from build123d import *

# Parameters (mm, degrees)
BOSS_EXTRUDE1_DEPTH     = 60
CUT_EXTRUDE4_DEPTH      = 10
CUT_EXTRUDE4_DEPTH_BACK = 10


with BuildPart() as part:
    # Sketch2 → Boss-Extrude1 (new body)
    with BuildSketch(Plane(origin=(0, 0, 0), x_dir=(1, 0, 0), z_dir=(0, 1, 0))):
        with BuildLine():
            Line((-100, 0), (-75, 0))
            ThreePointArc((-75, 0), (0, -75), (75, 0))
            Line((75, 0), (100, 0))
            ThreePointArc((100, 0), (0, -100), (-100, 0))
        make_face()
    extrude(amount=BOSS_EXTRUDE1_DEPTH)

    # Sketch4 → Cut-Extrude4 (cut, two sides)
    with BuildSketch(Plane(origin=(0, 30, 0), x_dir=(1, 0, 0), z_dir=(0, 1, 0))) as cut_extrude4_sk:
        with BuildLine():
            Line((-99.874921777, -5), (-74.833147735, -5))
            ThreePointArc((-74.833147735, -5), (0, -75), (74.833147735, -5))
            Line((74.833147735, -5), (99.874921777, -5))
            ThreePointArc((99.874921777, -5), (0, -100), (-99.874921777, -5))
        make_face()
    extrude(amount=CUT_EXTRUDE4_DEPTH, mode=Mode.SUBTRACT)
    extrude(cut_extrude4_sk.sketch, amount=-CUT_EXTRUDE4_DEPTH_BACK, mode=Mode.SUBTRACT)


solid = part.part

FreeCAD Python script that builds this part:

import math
import FreeCAD as App
import Part
import Sketcher

doc = App.newDocument("Part")
body = doc.addObject("PartDesign::Body", "Body")

sketch1 = body.newObject("Sketcher::SketchObject", "Sketch")
sketch1.AttachmentSupport = (doc.getObject("XZ_Plane"), [""])
sketch1.MapMode = "FlatFace"
sketch1.addGeometry(Part.LineSegment(App.Vector(-75, 0, 0), App.Vector(-100, 0, 0)), False)
sketch1.addGeometry(Part.ArcOfCircle(Part.Circle(App.Vector(0, 0, 0), App.Vector(0, 0, 1), 100), math.radians(0), math.radians(180)), False)
sketch1.addGeometry(Part.LineSegment(App.Vector(100, 0, 0), App.Vector(75, 0, 0)), False)
sketch1.addGeometry(Part.ArcOfCircle(Part.Circle(App.Vector(0, 0, 0), App.Vector(0, 0, 1), 75), math.radians(0), math.radians(180)), False)
sketch1.addConstraint(Sketcher.Constraint("Coincident", 0, 2, 1, 2))
sketch1.addConstraint(Sketcher.Constraint("Coincident", 1, 1, 2, 1))
sketch1.addConstraint(Sketcher.Constraint("Coincident", 2, 2, 3, 1))
sketch1.addConstraint(Sketcher.Constraint("Coincident", 3, 2, 0, 1))
sketch1.addConstraint(Sketcher.Constraint("Horizontal", 0))
sketch1.addConstraint(Sketcher.Constraint("Horizontal", 2))
sketch1.addConstraint(Sketcher.Constraint("Coincident", 1, 3, -1, 1))
sketch1.addConstraint(Sketcher.Constraint("Coincident", 3, 3, -1, 1))
sketch1.addConstraint(Sketcher.Constraint("PointOnObject", 0, 2, -1))
sketch1.addConstraint(Sketcher.Constraint("PointOnObject", 1, 1, -1))
sketch1.addConstraint(Sketcher.Constraint("Radius", 1, 100.0))
sketch1.addConstraint(Sketcher.Constraint("Radius", 3, 75.0))
pad1 = body.newObject("PartDesign::Pad", "Pad")
pad1.Profile = sketch1
pad1.Length = 60
pad1.Reversed = True

sketch2 = body.newObject("Sketcher::SketchObject", "Sketch001")
sketch2.AttachmentSupport = (doc.getObject("XZ_Plane"), [""])
sketch2.MapMode = "FlatFace"
sketch2.AttachmentOffset = App.Placement(App.Vector(0, 0, -30), App.Rotation())
sketch2.addGeometry(Part.LineSegment(App.Vector(-74.833148, 5, 0), App.Vector(-99.874922, 5, 0)), False)
sketch2.addGeometry(Part.ArcOfCircle(Part.Circle(App.Vector(0, 0, 0), App.Vector(0, 0, 1), 100), math.radians(2.865984), math.radians(177.134016)), False)
sketch2.addGeometry(Part.LineSegment(App.Vector(99.874922, 5, 0), App.Vector(74.833148, 5, 0)), False)
sketch2.addGeometry(Part.ArcOfCircle(Part.Circle(App.Vector(0, 0, 0), App.Vector(0, 0, 1), 75), math.radians(3.822554), math.radians(176.177446)), False)
sketch2.addConstraint(Sketcher.Constraint("Coincident", 0, 2, 1, 2))
sketch2.addConstraint(Sketcher.Constraint("Coincident", 1, 1, 2, 1))
sketch2.addConstraint(Sketcher.Constraint("Coincident", 2, 2, 3, 1))
sketch2.addConstraint(Sketcher.Constraint("Coincident", 3, 2, 0, 1))
sketch2.addConstraint(Sketcher.Constraint("Horizontal", 0))
sketch2.addConstraint(Sketcher.Constraint("Horizontal", 2))
sketch2.addConstraint(Sketcher.Constraint("Coincident", 1, 3, -1, 1))
sketch2.addConstraint(Sketcher.Constraint("Coincident", 3, 3, -1, 1))
sketch2.addConstraint(Sketcher.Constraint("Horizontal", 0, 2, 1, 1))
sketch2.addConstraint(Sketcher.Constraint("Radius", 1, 100.0))
sketch2.addConstraint(Sketcher.Constraint("Radius", 3, 75.0))
sketch2.addConstraint(Sketcher.Constraint("DistanceY", -1, 1, 0, 2, 5.0))
pocket1 = body.newObject("PartDesign::Pocket", "Pocket")
pocket1.Profile = sketch2
pocket1.Type = "TwoLengths"
pocket1.Length = 10
pocket1.Length2 = 10

doc.recompute()
